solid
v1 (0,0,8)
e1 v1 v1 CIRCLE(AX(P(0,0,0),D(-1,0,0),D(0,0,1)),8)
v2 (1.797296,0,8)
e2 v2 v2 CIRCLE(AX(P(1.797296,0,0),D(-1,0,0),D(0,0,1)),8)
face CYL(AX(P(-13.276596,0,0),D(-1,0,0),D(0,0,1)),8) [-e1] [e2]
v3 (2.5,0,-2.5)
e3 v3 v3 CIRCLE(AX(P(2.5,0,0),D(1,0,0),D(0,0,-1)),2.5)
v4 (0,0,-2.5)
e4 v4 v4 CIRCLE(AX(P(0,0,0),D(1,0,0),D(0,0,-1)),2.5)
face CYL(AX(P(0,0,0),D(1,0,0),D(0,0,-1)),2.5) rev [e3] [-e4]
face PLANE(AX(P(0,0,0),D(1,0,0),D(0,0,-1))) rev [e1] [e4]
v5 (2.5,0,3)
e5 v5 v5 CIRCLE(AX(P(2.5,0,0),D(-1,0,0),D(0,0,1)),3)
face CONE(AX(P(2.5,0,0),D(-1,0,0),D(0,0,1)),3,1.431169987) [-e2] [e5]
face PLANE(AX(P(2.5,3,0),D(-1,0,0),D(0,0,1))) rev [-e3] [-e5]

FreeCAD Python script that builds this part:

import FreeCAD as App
import Part
import Sketcher
from FreeCAD import Vector
Q = App.Units.Quantity


def add_polygon(sketch, points):
    """Adds a closed chain of lines whose ends are joined by coincident constraints."""
    first, n = sketch.GeometryCount, len(points)
    for a, b in zip(points, points[1:] + points[:1]):
        sketch.addGeometry(Part.LineSegment(App.Vector(*a, 0), App.Vector(*b, 0)), False)
    for i in range(n):
        sketch.addConstraint(Sketcher.Constraint("Coincident", first + i, 2, first + (i + 1) % n, 1))

doc = App.newDocument("Part")
body = doc.addObject("PartDesign::Body", "Body")

sketch1 = doc.addObject("Sketcher::SketchObject", "Sketch")
body.addObject(sketch1)
sketch1.AttachmentSupport = (doc.XY_Plane, [""])
sketch1.MapMode = "FlatFace"
add_polygon(sketch1, [(0, 8), (0, 0), (2.5, 0), (2.5, 3), (1.797296, 8)])
sketch1.addConstraint([
    Sketcher.Constraint("Vertical", 0),
    Sketcher.Constraint("Horizontal", 1),
    Sketcher.Constraint("Vertical", 2),
    Sketcher.Constraint("Horizontal", 4),
    Sketcher.Constraint("Coincident", 0, 2, -1, 1),
    Sketcher.Constraint("DistanceY", 0, 2, 0, 1, 8.0),
    Sketcher.Constraint("DistanceY", 2, 1, 2, 2, 3.0),
    Sketcher.Constraint("Angle", 3, Q("98 deg")),
    Sketcher.Constraint("DistanceX", 1, 1, 1, 2, 2.5),
])
revolution = doc.addObject("PartDesign::Revolution", "Revolution")
body.addObject(revolution)
revolution.Profile = sketch1
revolution.ReferenceAxis = (sketch1, ["H_Axis"])
revolution.Angle = 360

sketch2 = doc.addObject("Sketcher::SketchObject", "Sketch001")
body.addObject(sketch2)
sketch2.AttachmentSupport = (doc.YZ_Plane, [""])
sketch2.MapMode = "FlatFace"
sketch2.AttachmentOffset = App.Placement(Vector(0, 0, 2.5), App.Rotation())
sketch2.addGeometry(Part.Circle(Vector(0, 0, 0), Vector(0, 0, 1), 2.5), False)
sketch2.addConstraint([
    Sketcher.Constraint("Coincident", 0, 3, -1, 1),
    Sketcher.Constraint("Diameter", 0, 5.0),
])
pocket1 = doc.addObject("PartDesign::Pocket", "Pocket")
body.addObject(pocket1)
pocket1.Profile = sketch2
pocket1.Type = "ThroughAll"

doc.recompute()
